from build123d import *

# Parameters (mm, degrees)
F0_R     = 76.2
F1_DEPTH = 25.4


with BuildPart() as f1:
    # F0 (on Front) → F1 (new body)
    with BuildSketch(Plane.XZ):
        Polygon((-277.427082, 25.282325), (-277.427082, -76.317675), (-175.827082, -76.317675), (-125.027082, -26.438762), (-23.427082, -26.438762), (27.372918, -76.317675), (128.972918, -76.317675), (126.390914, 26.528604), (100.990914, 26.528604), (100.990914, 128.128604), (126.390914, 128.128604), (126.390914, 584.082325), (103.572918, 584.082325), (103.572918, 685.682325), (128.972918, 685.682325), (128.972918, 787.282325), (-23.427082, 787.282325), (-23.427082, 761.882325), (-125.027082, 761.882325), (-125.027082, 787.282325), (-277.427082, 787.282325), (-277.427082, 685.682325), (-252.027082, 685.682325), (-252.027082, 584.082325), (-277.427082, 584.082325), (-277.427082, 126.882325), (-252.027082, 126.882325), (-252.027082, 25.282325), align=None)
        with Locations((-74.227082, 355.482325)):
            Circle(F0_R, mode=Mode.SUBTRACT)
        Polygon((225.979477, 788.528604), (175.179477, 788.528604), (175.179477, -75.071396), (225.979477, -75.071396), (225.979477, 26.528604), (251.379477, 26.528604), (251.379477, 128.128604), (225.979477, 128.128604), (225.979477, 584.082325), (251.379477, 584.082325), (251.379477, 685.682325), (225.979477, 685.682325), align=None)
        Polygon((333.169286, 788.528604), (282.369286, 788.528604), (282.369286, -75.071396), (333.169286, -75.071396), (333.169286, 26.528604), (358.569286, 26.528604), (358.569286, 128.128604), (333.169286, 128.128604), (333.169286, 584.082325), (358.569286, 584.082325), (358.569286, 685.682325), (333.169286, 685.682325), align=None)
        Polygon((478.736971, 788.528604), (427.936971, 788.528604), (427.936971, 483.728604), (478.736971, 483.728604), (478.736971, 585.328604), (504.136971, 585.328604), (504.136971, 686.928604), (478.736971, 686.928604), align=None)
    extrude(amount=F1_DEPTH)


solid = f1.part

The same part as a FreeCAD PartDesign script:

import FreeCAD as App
import Part
import Sketcher
from FreeCAD import Vector
Q = App.Units.Quantity

doc = App.newDocument("Part")
params = doc.addObject("Spreadsheet::Sheet", "Params")
for row, (alias, value) in enumerate([
    ("sketch1_diameter", "6 in"),
    ("sketch1_width", "4 in"),
    ("sketch1_width2", "1 in"),
    ("sketch1_width3", "6 in"),
    ("sketch1_width4", "2 in"),
    ("pad1_length", "1 in"),
], start=1):
    params.set(f"A{row}", alias)
    params.set(f"B{row}", "=" + value)
    params.setAlias(f"B{row}", alias)

body = doc.addObject("PartDesign::Body", "Body")
body.AllowCompound = True

sketch1 = doc.addObject("Sketcher::SketchObject", "Sketch")
body.addObject(sketch1)
sketch1.AttachmentSupport = (doc.XZ_Plane, [""])
sketch1.MapMode = "FlatFace"
sketch1.addGeometry([
    Part.LineSegment(Vector(-277, 25, 0), Vector(-277, -76, 0)),
    Part.LineSegment(Vector(-277, -76, 0), Vector(-176, -76, 0)),
    Part.LineSegment(Vector(-176, -76, 0), Vector(-125, -26, 0)),
    Part.LineSegment(Vector(-125, -26, 0), Vector(-23, -26, 0)),
    Part.LineSegment(Vector(-23, -26, 0), Vector(27, -76, 0)),
    Part.LineSegment(Vector(27, -76, 0), Vector(129, -76, 0)),
    Part.LineSegment(Vector(129, -76, 0), Vector(126, 27, 0)),
    Part.LineSegment(Vector(126, 27, 0), Vector(101, 27, 0)),
    Part.LineSegment(Vector(101, 27, 0), Vector(101, 128, 0)),
    Part.LineSegment(Vector(101, 128, 0), Vector(126, 128, 0)),
    Part.LineSegment(Vector(126, 128, 0), Vector(126, 584, 0)),
    Part.LineSegment(Vector(126, 584, 0), Vector(104, 584, 0)),
    Part.LineSegment(Vector(104, 584, 0), Vector(104, 686, 0)),
    Part.LineSegment(Vector(104, 686, 0), Vector(129, 686, 0)),
    Part.LineSegment(Vector(129, 686, 0), Vector(129, 787, 0)),
    Part.LineSegment(Vector(129, 787, 0), Vector(-23, 787, 0)),
    Part.LineSegment(Vector(-23, 787, 0), Vector(-23, 762, 0)),
    Part.LineSegment(Vector(-23, 762, 0), Vector(-125, 762, 0)),
    Part.LineSegment(Vector(-125, 762, 0), Vector(-125, 787, 0)),
    Part.LineSegment(Vector(-125, 787, 0), Vector(-277, 787, 0)),
    Part.LineSegment(Vector(-277, 787, 0), Vector(-277, 686, 0)),
    Part.LineSegment(Vector(-277, 686, 0), Vector(-252, 686, 0)),
    Part.LineSegment(Vector(-252, 686, 0), Vector(-252, 584, 0)),
    Part.LineSegment(Vector(-252, 584, 0), Vector(-277, 584, 0)),
    Part.LineSegment(Vector(-277, 584, 0), Vector(-277, 127, 0)),
    Part.LineSegment(Vector(-277, 127, 0), Vector(-252, 127, 0)),
    Part.LineSegment(Vector(-252, 127, 0), Vector(-252, 25, 0)),
    Part.LineSegment(Vector(-252, 25, 0), Vector(-277, 25, 0)),
    Part.Circle(Vector(-74, 355, 0), Vector(0, 0, 1), 76),
    Part.LineSegment(Vector(226, 789, 0), Vector(175, 789, 0)),
    Part.LineSegment(Vector(175, 789, 0), Vector(175, -75, 0)),
    Part.LineSegment(Vector(175, -75, 0), Vector(226, -75, 0)),
    Part.LineSegment(Vector(226, -75, 0), Vector(226, 27, 0)),
    Part.LineSegment(Vector(226, 27, 0), Vector(251, 27, 0)),
    Part.LineSegment(Vector(251, 27, 0), Vector(251, 128, 0)),
    Part.LineSegment(Vector(251, 128, 0), Vector(226, 128, 0)),
    Part.LineSegment(Vector(226, 128, 0), Vector(226, 584, 0)),
    Part.LineSegment(Vector(226, 584, 0), Vector(251, 584, 0)),
    Part.LineSegment(Vector(251, 584, 0), Vector(251, 686, 0)),
    Part.LineSegment(Vector(251, 686, 0), Vector(226, 686, 0)),
    Part.LineSegment(Vector(226, 686, 0), Vector(226, 789, 0)),
    Part.LineSegment(Vector(333, 789, 0), Vector(282, 789, 0)),
    Part.LineSegment(Vector(282, 789, 0), Vector(282, -75, 0)),
    Part.LineSegment(Vector(282, -75, 0), Vector(333, -75, 0)),
    Part.LineSegment(Vector(333, -75, 0), Vector(333, 27, 0)),
    Part.LineSegment(Vector(333, 27, 0), Vector(359, 27, 0)),
    Part.LineSegment(Vector(359, 27, 0), Vector(359, 128, 0)),
    Part.LineSegment(Vector(359, 128, 0), Vector(333, 128, 0)),
    Part.LineSegment(Vector(333, 128, 0), Vector(333, 584, 0)),
    Part.LineSegment(Vector(333, 584, 0), Vector(359, 584, 0)),
    Part.LineSegment(Vector(359, 584, 0), Vector(359, 686, 0)),
    Part.LineSegment(Vector(359, 686, 0), Vector(333, 686, 0)),
    Part.LineSegment(Vector(333, 686, 0), Vector(333, 789, 0)),
    Part.LineSegment(Vector(479, 789, 0), Vector(428, 789, 0)),
    Part.LineSegment(Vector(428, 789, 0), Vector(428, 484, 0)),
    Part.LineSegment(Vector(428, 484, 0), Vector(479, 484, 0)),
    Part.LineSegment(Vector(479, 484, 0), Vector(479, 585, 0)),
    Part.LineSegment(Vector(479, 585, 0), Vector(504, 585, 0)),
    Part.LineSegment(Vector(504, 585, 0), Vector(504, 687, 0)),
    Part.LineSegment(Vector(504, 687, 0), Vector(479, 687, 0)),
    Part.LineSegment(Vector(479, 687, 0), Vector(479, 789, 0)),
], False)
sketch1.addConstraint([
    Sketcher.Constraint("Coincident", 0, 2, 1, 1),
    Sketcher.Constraint("Coincident", 1, 2, 2, 1),
    Sketcher.Constraint("Coincident", 2, 2, 3, 1),
    Sketcher.Constraint("Coincident", 3, 2, 4, 1),
    Sketcher.Constraint("Coincident", 4, 2, 5, 1),
    Sketcher.Constraint("Coincident", 5, 2, 6, 1),
    Sketcher.Constraint("Coincident", 6, 2, 7, 1),
    Sketcher.Constraint("Coincident", 7, 2, 8, 1),
    Sketcher.Constraint("Coincident", 8, 2, 9, 1),
    Sketcher.Constraint("Coincident", 9, 2, 10, 1),
    Sketcher.Constraint("Coincident", 10, 2, 11, 1),
    Sketcher.Constraint("Coincident", 11, 2, 12, 1),
    Sketcher.Constraint("Coincident", 12, 2, 13, 1),
    Sketcher.Constraint("Coincident", 13, 2, 14, 1),
    Sketcher.Constraint("Coincident", 14, 2, 15, 1),
    Sketcher.Constraint("Coincident", 15, 2, 16, 1),
    Sketcher.Constraint("Coincident", 16, 2, 17, 1),
    Sketcher.Constraint("Coincident", 17, 2, 18, 1),
    Sketcher.Constraint("Coincident", 18, 2, 19, 1),
    Sketcher.Constraint("Coincident", 19, 2, 20, 1),
    Sketcher.Constraint("Coincident", 20, 2, 21, 1),
    Sketcher.Constraint("Coincident", 21, 2, 22, 1),
    Sketcher.Constraint("Coincident", 22, 2, 23, 1),
    Sketcher.Constraint("Coincident", 23, 2, 24, 1),
    Sketcher.Constraint("Coincident", 24, 2, 25, 1),
    Sketcher.Constraint("Coincident", 25, 2, 26, 1),
    Sketcher.Constraint("Coincident", 26, 2, 27, 1),
    Sketcher.Constraint("Coincident", 27, 2, 0, 1),
    Sketcher.Constraint("Coincident", 29, 2, 30, 1),
    Sketcher.Constraint("Coincident", 30, 2, 31, 1),
    Sketcher.Constraint("Coincident", 31, 2, 32, 1),
    Sketcher.Constraint("Coincident", 32, 2, 33, 1),
    Sketcher.Constraint("Coincident", 33, 2, 34, 1),
    Sketcher.Constraint("Coincident", 34, 2, 35, 1),
    Sketcher.Constraint("Coincident", 35, 2, 36, 1),
    Sketcher.Constraint("Coincident", 36, 2, 37, 1),
    Sketcher.Constraint("Coincident", 37, 2, 38, 1),
    Sketcher.Constraint("Coincident", 38, 2, 39, 1),
    Sketcher.Constraint("Coincident", 39, 2, 40, 1),
    Sketcher.Constraint("Coincident", 40, 2, 29, 1),
    Sketcher.Constraint("Coincident", 41, 2, 42, 1),
    Sketcher.Constraint("Coincident", 42, 2, 43, 1),
    Sketcher.Constraint("Coincident", 43, 2, 44, 1),
    Sketcher.Constraint("Coincident", 44, 2, 45, 1),
    Sketcher.Constraint("Coincident", 45, 2, 46, 1),
    Sketcher.Constraint("Coincident", 46, 2, 47, 1),
    Sketcher.Constraint("Coincident", 47, 2, 48, 1),
    Sketcher.Constraint("Coincident", 48, 2, 49, 1),
    Sketcher.Constraint("Coincident", 49, 2, 50, 1),
    Sketcher.Constraint("Coincident", 50, 2, 51, 1),
    Sketcher.Constraint("Coincident", 51, 2, 52, 1),
    Sketcher.Constraint("Coincident", 52, 2, 41, 1),
    Sketcher.Constraint("Coincident", 53, 2, 54, 1),
    Sketcher.Constraint("Coincident", 54, 2, 55, 1),
    Sketcher.Constraint("Coincident", 55, 2, 56, 1),
    Sketcher.Constraint("Coincident", 56, 2, 57, 1),
    Sketcher.Constraint("Coincident", 57, 2, 58, 1),
    Sketcher.Constraint("Coincident", 58, 2, 59, 1),
    Sketcher.Constraint("Coincident", 59, 2, 60, 1),
    Sketcher.Constraint("Coincident", 60, 2, 53, 1),
    Sketcher.Constraint("Vertical", 0),
    Sketcher.Constraint("Horizontal", 1),
    Sketcher.Constraint("Horizontal", 3),
    Sketcher.Constraint("Horizontal", 5),
    Sketcher.Constraint("Horizontal", 7),
    Sketcher.Constraint("Vertical", 8),
    Sketcher.Constraint("Horizontal", 9),
    Sketcher.Constraint("Vertical", 10),
    Sketcher.Constraint("Horizontal", 11),
    Sketcher.Constraint("Vertical", 12),
    Sketcher.Constraint("Horizontal", 13),
    Sketcher.Constraint("Vertical", 14),
    Sketcher.Constraint("Horizontal", 15),
    Sketcher.Constraint("Vertical", 16),
    Sketcher.Constraint("Horizontal", 17),
    Sketcher.Constraint("Vertical", 18),
    Sketcher.Constraint("Horizontal", 19),
    Sketcher.Constraint("Vertical", 20),
    Sketcher.Constraint("Horizontal", 21),
    Sketcher.Constraint("Vertical", 22),
    Sketcher.Constraint("Horizontal", 23),
    Sketcher.Constraint("Vertical", 24),
    Sketcher.Constraint("Horizontal", 25),
    Sketcher.Constraint("Vertical", 26),
    Sketcher.Constraint("Horizontal", 27),
    Sketcher.Constraint("Horizontal", 29),
    Sketcher.Constraint("Vertical", 30),
    Sketcher.Constraint("Horizontal", 31),
    Sketcher.Constraint("Vertical", 32),
    Sketcher.Constraint("Horizontal", 33),
    Sketcher.Constraint("Vertical", 34),
    Sketcher.Constraint("Horizontal", 35),
    Sketcher.Constraint("Vertical", 36),
    Sketcher.Constraint("Horizontal", 37),
    Sketcher.Constraint("Vertical", 38),
    Sketcher.Constraint("Horizontal", 39),
    Sketcher.Constraint("Vertical", 40),
    Sketcher.Constraint("Horizontal", 41),
    Sketcher.Constraint("Vertical", 42),
    Sketcher.Constraint("Horizontal", 43),
    Sketcher.Constraint("Vertical", 44),
    Sketcher.Constraint("Horizontal", 45),
    Sketcher.Constraint("Vertical", 46),
    Sketcher.Constraint("Horizontal", 47),
    Sketcher.Constraint("Vertical", 48),
    Sketcher.Constraint("Horizontal", 49),
    Sketcher.Constraint("Vertical", 50),
    Sketcher.Constraint("Horizontal", 51),
    Sketcher.Constraint("Vertical", 52),
    Sketcher.Constraint("Horizontal", 53),
    Sketcher.Constraint("Vertical", 54),
    Sketcher.Constraint("Horizontal", 55),
    Sketcher.Constraint("Vertical", 56),
    Sketcher.Constraint("Horizontal", 57),
    Sketcher.Constraint("Vertical", 58),
    Sketcher.Constraint("Horizontal", 59),
    Sketcher.Constraint("Vertical", 60),
    Sketcher.Constraint("Horizontal", 1, 2, 4, 2),
    Sketcher.Constraint("Horizontal", 15, 2, 18, 2),
    Sketcher.Constraint("Horizontal", 13, 2, 20, 2),
    Sketcher.Constraint("Horizontal", 11, 2, 22, 2),
    Sketcher.Constraint("Horizontal", 7, 2, 32, 2),
    Sketcher.Constraint("Horizontal", 9, 2, 34, 2),
    Sketcher.Constraint("Horizontal", 23, 2, 36, 2),
    Sketcher.Constraint("Horizontal", 21, 2, 38, 2),
    Sketcher.Constraint("Horizontal", 40, 2, 41, 2),
    Sketcher.Constraint("Horizontal", 31, 2, 42, 2),
    Sketcher.Constraint("Horizontal", 33, 2, 44, 2),
    Sketcher.Constraint("Horizontal", 35, 2, 46, 2),
    Sketcher.Constraint("Horizontal", 37, 2, 48, 2),
    Sketcher.Constraint("Horizontal", 39, 2, 50, 2),
    Sketcher.Constraint("Horizontal", 52, 2, 53, 2),
    Sketcher.Constraint("Vertical", 6, 2, 9, 2),
    Sketcher.Constraint("Vertical", 5, 2, 13, 2),
    Sketcher.Constraint("Vertical", 3, 2, 15, 2),
    Sketcher.Constraint("Vertical", 2, 2, 17, 2),
    Sketcher.Constraint("Vertical", 0, 2, 19, 2),
    Sketcher.Constraint("Vertical", 20, 2, 23, 2),
    Sketcher.Constraint("Vertical", 22, 2, 25, 2),
    Sketcher.Constraint("Vertical", 32, 2, 35, 2),
    Sketcher.Constraint("Vertical", 34, 2, 37, 2),
    Sketcher.Constraint("Vertical", 36, 2, 39, 2),
    Sketcher.Constraint("Vertical", 44, 2, 47, 2),
    Sketcher.Constraint("Vertical", 46, 2, 49, 2),
    Sketcher.Constraint("Vertical", 48, 2, 51, 2),
    Sketcher.Constraint("Vertical", 56, 2, 59, 2),
    Sketcher.Constraint("Equal", 1, 3),
    Sketcher.Constraint("Equal", 3, 5),
    Sketcher.Constraint("Equal", 9, 13),
    Sketcher.Constraint("Equal", 15, 19),
    Sketcher.Constraint("Equal", 13, 21),
    Sketcher.Constraint("Equal", 27, 33),
    Sketcher.Constraint("Equal", 31, 41),
    Sketcher.Constraint("Equal", 39, 45),
    Sketcher.Constraint("Equal", 43, 53),
    Sketcher.Constraint("Equal", 51, 57),
    Sketcher.Constraint("Equal", 17, 0),
    Sketcher.Constraint("Equal", 0, 8),
    Sketcher.Constraint("Equal", 8, 12),
    Sketcher.Constraint("Equal", 12, 14),
    Sketcher.Constraint("Equal", 59, 16),
    Sketcher.Constraint("Equal", 22, 26),
    Sketcher.Constraint("Equal", 26, 32),
    Sketcher.Constraint("Equal", 50, 56),
    Sketcher.Constraint("Equal", 56, 58),
    Sketcher.Constraint("Equal", 58, 60),
    Sketcher.Constraint("Diameter", 28, Q("6 in")),
    Sketcher.Constraint("DistanceX", 1, 1, 1, 2, Q("4 in")),
    Sketcher.Constraint("DistanceX", 7, 2, 7, 1, Q("1 in")),
    Sketcher.Constraint("DistanceX", 15, 2, 15, 1, Q("6 in")),
    Sketcher.Constraint("DistanceX", 29, 2, 29, 1, Q("2 in")),
    Sketcher.Constraint("DistanceY", 24, 2, 24, 1, Q("18 in")),
    Sketcher.Constraint("DistanceY", 30, 2, 30, 1, Q("34 in")),
    Sketcher.Constraint("DistanceY", 10, 1, 10, 2, Q("455.953721 mm")),
    Sketcher.Constraint("Distance", 2, Q("71.193721 mm")),
    Sketcher.Constraint("DistanceX", 11, 2, 11, 1, Q("22.817996 mm")),
    Sketcher.Constraint("DistanceX", 28, 3, -1, 1, Q("74.227082 mm")),
    Sketcher.Constraint("DistanceX", 0, 2, -1, 1, Q("277.427082 mm")),
    Sketcher.Constraint("DistanceX", -1, 1, 53, 2, Q("427.936971 mm")),
    Sketcher.Constraint("DistanceY", -1, 1, 28, 3, Q("355.482325 mm")),
    Sketcher.Constraint("DistanceY", 0, 2, -1, 1, Q("76.317675 mm")),
    Sketcher.Constraint("DistanceX", -1, 1, 29, 2, Q("175.179477 mm")),
    Sketcher.Constraint("DistanceX", -1, 1, 41, 2, Q("282.369286 mm")),
])
sketch1.setExpression("Constraints[166]", "Params.sketch1_diameter")
sketch1.setExpression("Constraints[167]", "Params.sketch1_width")
sketch1.setExpression("Constraints[168]", "Params.sketch1_width2")
sketch1.setExpression("Constraints[169]", "Params.sketch1_width3")
sketch1.setExpression("Constraints[170]", "Params.sketch1_width4")
pad1 = doc.addObject("PartDesign::Pad", "Pad")
body.addObject(pad1)
pad1.Profile = sketch1
pad1.setExpression("Length", "Params.pad1_length")

doc.recompute()
